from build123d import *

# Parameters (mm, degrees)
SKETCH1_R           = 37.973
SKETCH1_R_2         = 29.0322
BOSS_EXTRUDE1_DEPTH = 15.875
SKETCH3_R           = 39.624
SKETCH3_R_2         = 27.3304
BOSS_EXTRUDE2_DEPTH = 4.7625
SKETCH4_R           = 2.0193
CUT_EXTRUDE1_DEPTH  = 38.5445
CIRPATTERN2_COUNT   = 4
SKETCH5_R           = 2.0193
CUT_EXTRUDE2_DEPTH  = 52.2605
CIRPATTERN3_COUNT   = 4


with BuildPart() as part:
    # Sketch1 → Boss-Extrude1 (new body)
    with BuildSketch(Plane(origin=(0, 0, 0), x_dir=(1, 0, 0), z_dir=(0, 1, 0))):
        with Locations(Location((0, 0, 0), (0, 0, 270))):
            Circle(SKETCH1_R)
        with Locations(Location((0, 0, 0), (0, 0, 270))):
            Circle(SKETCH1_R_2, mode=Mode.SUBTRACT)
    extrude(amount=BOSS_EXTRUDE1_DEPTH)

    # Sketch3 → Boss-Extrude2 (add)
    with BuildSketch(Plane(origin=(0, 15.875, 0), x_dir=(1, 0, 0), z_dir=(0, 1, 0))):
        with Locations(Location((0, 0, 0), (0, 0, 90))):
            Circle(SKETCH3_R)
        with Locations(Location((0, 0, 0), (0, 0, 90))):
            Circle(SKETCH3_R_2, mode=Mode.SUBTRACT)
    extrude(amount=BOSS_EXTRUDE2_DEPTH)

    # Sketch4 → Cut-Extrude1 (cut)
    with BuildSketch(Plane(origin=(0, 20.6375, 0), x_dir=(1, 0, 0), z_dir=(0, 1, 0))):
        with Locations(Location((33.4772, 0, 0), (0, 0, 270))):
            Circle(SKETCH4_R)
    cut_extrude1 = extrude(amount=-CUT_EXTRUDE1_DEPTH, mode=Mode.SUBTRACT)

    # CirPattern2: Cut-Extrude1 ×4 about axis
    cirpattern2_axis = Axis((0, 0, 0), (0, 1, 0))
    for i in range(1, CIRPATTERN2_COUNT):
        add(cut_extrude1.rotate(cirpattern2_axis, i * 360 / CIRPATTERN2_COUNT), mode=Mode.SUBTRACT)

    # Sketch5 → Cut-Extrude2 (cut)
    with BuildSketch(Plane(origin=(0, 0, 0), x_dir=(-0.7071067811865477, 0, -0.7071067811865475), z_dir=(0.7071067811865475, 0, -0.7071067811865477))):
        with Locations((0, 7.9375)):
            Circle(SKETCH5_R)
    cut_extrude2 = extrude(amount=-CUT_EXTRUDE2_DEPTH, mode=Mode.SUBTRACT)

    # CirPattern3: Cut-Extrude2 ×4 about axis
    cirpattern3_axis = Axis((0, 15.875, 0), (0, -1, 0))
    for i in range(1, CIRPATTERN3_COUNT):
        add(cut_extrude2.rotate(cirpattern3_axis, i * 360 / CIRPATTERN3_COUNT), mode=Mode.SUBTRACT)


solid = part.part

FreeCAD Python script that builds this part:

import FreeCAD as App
import Part
import Sketcher
Q = App.Units.Quantity

doc = App.newDocument("Part")
params = doc.addObject("Spreadsheet::Sheet", "Params")
for row, (alias, value) in enumerate([
    ("sketch1_diameter", "2.99 in"),
    ("sketch1_diameter2", "2.286 in"),
    ("pad1_length", "0.625 in"),
    ("sketch2_diameter", "3.12 in"),
    ("sketch2_diameter2", "2.152 in"),
    ("pad2_length", "0.1875 in"),
    ("sketch3_diameter", "0.159 in"),
    ("pocket1_length", "1.5175 in"),
    ("sketch4_diameter", "0.159 in"),
    ("pocket2_length", "2.0575 in"),
], start=1):
    params.set(f"A{row}", alias)
    params.set(f"B{row}", "=" + value)
    params.setAlias(f"B{row}", alias)

body = doc.addObject("PartDesign::Body", "Body")

sketch1 = body.newObject("Sketcher::SketchObject", "Sketch")
sketch1.AttachmentSupport = (doc.getObject("XZ_Plane"), [""])
sketch1.MapMode = "FlatFace"
sketch1.addGeometry([
    Part.Circle(App.Vector(0, 0, 0), App.Vector(0, 0, 1), 38),
    Part.Circle(App.Vector(0, 0, 0), App.Vector(0, 0, 1), 29),
], False)
sketch1.addConstraint([
    Sketcher.Constraint("Coincident", 0, 3, -1, 1),
    Sketcher.Constraint("Coincident", 1, 3, -1, 1),
    Sketcher.Constraint("Diameter", 0, Q("2.99 in")),
    Sketcher.Constraint("Diameter", 1, Q("2.286 in")),
])
sketch1.setExpression("Constraints[2]", "Params.sketch1_diameter")
sketch1.setExpression("Constraints[3]", "Params.sketch1_diameter2")
pad1 = body.newObject("PartDesign::Pad", "Pad")
pad1.Profile = sketch1
pad1.setExpression("Length", "Params.pad1_length")
pad1.Reversed = True

sketch2 = body.newObject("Sketcher::SketchObject", "Sketch001")
sketch2.AttachmentSupport = (doc.getObject("XZ_Plane"), [""])
sketch2.MapMode = "FlatFace"
sketch2.AttachmentOffset = App.Placement(App.Vector(0, 0, -0.625 * 25.4), App.Rotation())
sketch2.addGeometry([
    Part.Circle(App.Vector(0, 0, 0), App.Vector(0, 0, 1), 40),
    Part.Circle(App.Vector(0, 0, 0), App.Vector(0, 0, 1), 27),
], False)
sketch2.addConstraint([
    Sketcher.Constraint("Coincident", 0, 3, -1, 1),
    Sketcher.Constraint("Coincident", 1, 3, -1, 1),
    Sketcher.Constraint("Diameter", 0, Q("3.12 in")),
    Sketcher.Constraint("Diameter", 1, Q("2.152 in")),
])
sketch2.setExpression("Constraints[2]", "Params.sketch2_diameter")
sketch2.setExpression("Constraints[3]", "Params.sketch2_diameter2")
pad2 = body.newObject("PartDesign::Pad", "Pad001")
pad2.Profile = sketch2
pad2.setExpression("Length", "Params.pad2_length")
pad2.Reversed = True

sketch3 = body.newObject("Sketcher::SketchObject", "Sketch002")
sketch3.AttachmentSupport = (doc.getObject("XZ_Plane"), [""])
sketch3.MapMode = "FlatFace"
sketch3.AttachmentOffset = App.Placement(App.Vector(0, 0, -0.8125 * 25.4), App.Rotation())
sketch3.addGeometry(Part.Circle(App.Vector(33.5, 0, 0), App.Vector(0, 0, 1), 2), False)
sketch3.addConstraint([
    Sketcher.Constraint("PointOnObject", 0, 3, -1),
    Sketcher.Constraint("Diameter", 0, Q("0.159 in")),
    Sketcher.Constraint("DistanceX", -1, 1, 0, 3, Q("1.318 in")),
])
sketch3.setExpression("Constraints[1]", "Params.sketch3_diameter")
pocket1 = body.newObject("PartDesign::Pocket", "Pocket")
pocket1.Profile = sketch3
pocket1.setExpression("Length", "Params.pocket1_length")
pocket1.Reversed = True
doc.recompute()

polarpattern = body.newObject("PartDesign::PolarPattern", "PolarPattern")
polarpattern.Originals = [pocket1]
polarpattern.Axis = (doc.getObject("Y_Axis"), [""])
polarpattern.Angle = 360
polarpattern.Occurrences = 4
body.Tip = polarpattern

sketch4 = body.newObject("Sketcher::SketchObject", "Sketch003")
sketch4.Placement = App.Placement(App.Vector(0, 0, 0), App.Rotation(App.Vector(-0.707106781, 0, -0.707106781), App.Vector(0, 0.999999999, 0), App.Vector(0.707106781, 0, -0.707106781), "ZXY"))
sketch4.addGeometry(Part.Circle(App.Vector(0, 7.9, 0), App.Vector(0, 0, 1), 2), False)
sketch4.addConstraint([
    Sketcher.Constraint("PointOnObject", 0, 3, -2),
    Sketcher.Constraint("Diameter", 0, Q("0.159 in")),
    Sketcher.Constraint("DistanceY", -1, 1, 0, 3, Q("0.3125 in")),
])
sketch4.setExpression("Constraints[1]", "Params.sketch4_diameter")
pocket2 = body.newObject("PartDesign::Pocket", "Pocket001")
pocket2.Profile = sketch4
pocket2.setExpression("Length", "Params.pocket2_length")
doc.recompute()

polarpattern2 = body.newObject("PartDesign::PolarPattern", "PolarPattern001")
polarpattern2.Originals = [pocket2]
polarpattern2.Axis = (doc.getObject("Y_Axis"), [""])
polarpattern2.Angle = 360
polarpattern2.Occurrences = 4
body.Tip = polarpattern2

doc.recompute()
